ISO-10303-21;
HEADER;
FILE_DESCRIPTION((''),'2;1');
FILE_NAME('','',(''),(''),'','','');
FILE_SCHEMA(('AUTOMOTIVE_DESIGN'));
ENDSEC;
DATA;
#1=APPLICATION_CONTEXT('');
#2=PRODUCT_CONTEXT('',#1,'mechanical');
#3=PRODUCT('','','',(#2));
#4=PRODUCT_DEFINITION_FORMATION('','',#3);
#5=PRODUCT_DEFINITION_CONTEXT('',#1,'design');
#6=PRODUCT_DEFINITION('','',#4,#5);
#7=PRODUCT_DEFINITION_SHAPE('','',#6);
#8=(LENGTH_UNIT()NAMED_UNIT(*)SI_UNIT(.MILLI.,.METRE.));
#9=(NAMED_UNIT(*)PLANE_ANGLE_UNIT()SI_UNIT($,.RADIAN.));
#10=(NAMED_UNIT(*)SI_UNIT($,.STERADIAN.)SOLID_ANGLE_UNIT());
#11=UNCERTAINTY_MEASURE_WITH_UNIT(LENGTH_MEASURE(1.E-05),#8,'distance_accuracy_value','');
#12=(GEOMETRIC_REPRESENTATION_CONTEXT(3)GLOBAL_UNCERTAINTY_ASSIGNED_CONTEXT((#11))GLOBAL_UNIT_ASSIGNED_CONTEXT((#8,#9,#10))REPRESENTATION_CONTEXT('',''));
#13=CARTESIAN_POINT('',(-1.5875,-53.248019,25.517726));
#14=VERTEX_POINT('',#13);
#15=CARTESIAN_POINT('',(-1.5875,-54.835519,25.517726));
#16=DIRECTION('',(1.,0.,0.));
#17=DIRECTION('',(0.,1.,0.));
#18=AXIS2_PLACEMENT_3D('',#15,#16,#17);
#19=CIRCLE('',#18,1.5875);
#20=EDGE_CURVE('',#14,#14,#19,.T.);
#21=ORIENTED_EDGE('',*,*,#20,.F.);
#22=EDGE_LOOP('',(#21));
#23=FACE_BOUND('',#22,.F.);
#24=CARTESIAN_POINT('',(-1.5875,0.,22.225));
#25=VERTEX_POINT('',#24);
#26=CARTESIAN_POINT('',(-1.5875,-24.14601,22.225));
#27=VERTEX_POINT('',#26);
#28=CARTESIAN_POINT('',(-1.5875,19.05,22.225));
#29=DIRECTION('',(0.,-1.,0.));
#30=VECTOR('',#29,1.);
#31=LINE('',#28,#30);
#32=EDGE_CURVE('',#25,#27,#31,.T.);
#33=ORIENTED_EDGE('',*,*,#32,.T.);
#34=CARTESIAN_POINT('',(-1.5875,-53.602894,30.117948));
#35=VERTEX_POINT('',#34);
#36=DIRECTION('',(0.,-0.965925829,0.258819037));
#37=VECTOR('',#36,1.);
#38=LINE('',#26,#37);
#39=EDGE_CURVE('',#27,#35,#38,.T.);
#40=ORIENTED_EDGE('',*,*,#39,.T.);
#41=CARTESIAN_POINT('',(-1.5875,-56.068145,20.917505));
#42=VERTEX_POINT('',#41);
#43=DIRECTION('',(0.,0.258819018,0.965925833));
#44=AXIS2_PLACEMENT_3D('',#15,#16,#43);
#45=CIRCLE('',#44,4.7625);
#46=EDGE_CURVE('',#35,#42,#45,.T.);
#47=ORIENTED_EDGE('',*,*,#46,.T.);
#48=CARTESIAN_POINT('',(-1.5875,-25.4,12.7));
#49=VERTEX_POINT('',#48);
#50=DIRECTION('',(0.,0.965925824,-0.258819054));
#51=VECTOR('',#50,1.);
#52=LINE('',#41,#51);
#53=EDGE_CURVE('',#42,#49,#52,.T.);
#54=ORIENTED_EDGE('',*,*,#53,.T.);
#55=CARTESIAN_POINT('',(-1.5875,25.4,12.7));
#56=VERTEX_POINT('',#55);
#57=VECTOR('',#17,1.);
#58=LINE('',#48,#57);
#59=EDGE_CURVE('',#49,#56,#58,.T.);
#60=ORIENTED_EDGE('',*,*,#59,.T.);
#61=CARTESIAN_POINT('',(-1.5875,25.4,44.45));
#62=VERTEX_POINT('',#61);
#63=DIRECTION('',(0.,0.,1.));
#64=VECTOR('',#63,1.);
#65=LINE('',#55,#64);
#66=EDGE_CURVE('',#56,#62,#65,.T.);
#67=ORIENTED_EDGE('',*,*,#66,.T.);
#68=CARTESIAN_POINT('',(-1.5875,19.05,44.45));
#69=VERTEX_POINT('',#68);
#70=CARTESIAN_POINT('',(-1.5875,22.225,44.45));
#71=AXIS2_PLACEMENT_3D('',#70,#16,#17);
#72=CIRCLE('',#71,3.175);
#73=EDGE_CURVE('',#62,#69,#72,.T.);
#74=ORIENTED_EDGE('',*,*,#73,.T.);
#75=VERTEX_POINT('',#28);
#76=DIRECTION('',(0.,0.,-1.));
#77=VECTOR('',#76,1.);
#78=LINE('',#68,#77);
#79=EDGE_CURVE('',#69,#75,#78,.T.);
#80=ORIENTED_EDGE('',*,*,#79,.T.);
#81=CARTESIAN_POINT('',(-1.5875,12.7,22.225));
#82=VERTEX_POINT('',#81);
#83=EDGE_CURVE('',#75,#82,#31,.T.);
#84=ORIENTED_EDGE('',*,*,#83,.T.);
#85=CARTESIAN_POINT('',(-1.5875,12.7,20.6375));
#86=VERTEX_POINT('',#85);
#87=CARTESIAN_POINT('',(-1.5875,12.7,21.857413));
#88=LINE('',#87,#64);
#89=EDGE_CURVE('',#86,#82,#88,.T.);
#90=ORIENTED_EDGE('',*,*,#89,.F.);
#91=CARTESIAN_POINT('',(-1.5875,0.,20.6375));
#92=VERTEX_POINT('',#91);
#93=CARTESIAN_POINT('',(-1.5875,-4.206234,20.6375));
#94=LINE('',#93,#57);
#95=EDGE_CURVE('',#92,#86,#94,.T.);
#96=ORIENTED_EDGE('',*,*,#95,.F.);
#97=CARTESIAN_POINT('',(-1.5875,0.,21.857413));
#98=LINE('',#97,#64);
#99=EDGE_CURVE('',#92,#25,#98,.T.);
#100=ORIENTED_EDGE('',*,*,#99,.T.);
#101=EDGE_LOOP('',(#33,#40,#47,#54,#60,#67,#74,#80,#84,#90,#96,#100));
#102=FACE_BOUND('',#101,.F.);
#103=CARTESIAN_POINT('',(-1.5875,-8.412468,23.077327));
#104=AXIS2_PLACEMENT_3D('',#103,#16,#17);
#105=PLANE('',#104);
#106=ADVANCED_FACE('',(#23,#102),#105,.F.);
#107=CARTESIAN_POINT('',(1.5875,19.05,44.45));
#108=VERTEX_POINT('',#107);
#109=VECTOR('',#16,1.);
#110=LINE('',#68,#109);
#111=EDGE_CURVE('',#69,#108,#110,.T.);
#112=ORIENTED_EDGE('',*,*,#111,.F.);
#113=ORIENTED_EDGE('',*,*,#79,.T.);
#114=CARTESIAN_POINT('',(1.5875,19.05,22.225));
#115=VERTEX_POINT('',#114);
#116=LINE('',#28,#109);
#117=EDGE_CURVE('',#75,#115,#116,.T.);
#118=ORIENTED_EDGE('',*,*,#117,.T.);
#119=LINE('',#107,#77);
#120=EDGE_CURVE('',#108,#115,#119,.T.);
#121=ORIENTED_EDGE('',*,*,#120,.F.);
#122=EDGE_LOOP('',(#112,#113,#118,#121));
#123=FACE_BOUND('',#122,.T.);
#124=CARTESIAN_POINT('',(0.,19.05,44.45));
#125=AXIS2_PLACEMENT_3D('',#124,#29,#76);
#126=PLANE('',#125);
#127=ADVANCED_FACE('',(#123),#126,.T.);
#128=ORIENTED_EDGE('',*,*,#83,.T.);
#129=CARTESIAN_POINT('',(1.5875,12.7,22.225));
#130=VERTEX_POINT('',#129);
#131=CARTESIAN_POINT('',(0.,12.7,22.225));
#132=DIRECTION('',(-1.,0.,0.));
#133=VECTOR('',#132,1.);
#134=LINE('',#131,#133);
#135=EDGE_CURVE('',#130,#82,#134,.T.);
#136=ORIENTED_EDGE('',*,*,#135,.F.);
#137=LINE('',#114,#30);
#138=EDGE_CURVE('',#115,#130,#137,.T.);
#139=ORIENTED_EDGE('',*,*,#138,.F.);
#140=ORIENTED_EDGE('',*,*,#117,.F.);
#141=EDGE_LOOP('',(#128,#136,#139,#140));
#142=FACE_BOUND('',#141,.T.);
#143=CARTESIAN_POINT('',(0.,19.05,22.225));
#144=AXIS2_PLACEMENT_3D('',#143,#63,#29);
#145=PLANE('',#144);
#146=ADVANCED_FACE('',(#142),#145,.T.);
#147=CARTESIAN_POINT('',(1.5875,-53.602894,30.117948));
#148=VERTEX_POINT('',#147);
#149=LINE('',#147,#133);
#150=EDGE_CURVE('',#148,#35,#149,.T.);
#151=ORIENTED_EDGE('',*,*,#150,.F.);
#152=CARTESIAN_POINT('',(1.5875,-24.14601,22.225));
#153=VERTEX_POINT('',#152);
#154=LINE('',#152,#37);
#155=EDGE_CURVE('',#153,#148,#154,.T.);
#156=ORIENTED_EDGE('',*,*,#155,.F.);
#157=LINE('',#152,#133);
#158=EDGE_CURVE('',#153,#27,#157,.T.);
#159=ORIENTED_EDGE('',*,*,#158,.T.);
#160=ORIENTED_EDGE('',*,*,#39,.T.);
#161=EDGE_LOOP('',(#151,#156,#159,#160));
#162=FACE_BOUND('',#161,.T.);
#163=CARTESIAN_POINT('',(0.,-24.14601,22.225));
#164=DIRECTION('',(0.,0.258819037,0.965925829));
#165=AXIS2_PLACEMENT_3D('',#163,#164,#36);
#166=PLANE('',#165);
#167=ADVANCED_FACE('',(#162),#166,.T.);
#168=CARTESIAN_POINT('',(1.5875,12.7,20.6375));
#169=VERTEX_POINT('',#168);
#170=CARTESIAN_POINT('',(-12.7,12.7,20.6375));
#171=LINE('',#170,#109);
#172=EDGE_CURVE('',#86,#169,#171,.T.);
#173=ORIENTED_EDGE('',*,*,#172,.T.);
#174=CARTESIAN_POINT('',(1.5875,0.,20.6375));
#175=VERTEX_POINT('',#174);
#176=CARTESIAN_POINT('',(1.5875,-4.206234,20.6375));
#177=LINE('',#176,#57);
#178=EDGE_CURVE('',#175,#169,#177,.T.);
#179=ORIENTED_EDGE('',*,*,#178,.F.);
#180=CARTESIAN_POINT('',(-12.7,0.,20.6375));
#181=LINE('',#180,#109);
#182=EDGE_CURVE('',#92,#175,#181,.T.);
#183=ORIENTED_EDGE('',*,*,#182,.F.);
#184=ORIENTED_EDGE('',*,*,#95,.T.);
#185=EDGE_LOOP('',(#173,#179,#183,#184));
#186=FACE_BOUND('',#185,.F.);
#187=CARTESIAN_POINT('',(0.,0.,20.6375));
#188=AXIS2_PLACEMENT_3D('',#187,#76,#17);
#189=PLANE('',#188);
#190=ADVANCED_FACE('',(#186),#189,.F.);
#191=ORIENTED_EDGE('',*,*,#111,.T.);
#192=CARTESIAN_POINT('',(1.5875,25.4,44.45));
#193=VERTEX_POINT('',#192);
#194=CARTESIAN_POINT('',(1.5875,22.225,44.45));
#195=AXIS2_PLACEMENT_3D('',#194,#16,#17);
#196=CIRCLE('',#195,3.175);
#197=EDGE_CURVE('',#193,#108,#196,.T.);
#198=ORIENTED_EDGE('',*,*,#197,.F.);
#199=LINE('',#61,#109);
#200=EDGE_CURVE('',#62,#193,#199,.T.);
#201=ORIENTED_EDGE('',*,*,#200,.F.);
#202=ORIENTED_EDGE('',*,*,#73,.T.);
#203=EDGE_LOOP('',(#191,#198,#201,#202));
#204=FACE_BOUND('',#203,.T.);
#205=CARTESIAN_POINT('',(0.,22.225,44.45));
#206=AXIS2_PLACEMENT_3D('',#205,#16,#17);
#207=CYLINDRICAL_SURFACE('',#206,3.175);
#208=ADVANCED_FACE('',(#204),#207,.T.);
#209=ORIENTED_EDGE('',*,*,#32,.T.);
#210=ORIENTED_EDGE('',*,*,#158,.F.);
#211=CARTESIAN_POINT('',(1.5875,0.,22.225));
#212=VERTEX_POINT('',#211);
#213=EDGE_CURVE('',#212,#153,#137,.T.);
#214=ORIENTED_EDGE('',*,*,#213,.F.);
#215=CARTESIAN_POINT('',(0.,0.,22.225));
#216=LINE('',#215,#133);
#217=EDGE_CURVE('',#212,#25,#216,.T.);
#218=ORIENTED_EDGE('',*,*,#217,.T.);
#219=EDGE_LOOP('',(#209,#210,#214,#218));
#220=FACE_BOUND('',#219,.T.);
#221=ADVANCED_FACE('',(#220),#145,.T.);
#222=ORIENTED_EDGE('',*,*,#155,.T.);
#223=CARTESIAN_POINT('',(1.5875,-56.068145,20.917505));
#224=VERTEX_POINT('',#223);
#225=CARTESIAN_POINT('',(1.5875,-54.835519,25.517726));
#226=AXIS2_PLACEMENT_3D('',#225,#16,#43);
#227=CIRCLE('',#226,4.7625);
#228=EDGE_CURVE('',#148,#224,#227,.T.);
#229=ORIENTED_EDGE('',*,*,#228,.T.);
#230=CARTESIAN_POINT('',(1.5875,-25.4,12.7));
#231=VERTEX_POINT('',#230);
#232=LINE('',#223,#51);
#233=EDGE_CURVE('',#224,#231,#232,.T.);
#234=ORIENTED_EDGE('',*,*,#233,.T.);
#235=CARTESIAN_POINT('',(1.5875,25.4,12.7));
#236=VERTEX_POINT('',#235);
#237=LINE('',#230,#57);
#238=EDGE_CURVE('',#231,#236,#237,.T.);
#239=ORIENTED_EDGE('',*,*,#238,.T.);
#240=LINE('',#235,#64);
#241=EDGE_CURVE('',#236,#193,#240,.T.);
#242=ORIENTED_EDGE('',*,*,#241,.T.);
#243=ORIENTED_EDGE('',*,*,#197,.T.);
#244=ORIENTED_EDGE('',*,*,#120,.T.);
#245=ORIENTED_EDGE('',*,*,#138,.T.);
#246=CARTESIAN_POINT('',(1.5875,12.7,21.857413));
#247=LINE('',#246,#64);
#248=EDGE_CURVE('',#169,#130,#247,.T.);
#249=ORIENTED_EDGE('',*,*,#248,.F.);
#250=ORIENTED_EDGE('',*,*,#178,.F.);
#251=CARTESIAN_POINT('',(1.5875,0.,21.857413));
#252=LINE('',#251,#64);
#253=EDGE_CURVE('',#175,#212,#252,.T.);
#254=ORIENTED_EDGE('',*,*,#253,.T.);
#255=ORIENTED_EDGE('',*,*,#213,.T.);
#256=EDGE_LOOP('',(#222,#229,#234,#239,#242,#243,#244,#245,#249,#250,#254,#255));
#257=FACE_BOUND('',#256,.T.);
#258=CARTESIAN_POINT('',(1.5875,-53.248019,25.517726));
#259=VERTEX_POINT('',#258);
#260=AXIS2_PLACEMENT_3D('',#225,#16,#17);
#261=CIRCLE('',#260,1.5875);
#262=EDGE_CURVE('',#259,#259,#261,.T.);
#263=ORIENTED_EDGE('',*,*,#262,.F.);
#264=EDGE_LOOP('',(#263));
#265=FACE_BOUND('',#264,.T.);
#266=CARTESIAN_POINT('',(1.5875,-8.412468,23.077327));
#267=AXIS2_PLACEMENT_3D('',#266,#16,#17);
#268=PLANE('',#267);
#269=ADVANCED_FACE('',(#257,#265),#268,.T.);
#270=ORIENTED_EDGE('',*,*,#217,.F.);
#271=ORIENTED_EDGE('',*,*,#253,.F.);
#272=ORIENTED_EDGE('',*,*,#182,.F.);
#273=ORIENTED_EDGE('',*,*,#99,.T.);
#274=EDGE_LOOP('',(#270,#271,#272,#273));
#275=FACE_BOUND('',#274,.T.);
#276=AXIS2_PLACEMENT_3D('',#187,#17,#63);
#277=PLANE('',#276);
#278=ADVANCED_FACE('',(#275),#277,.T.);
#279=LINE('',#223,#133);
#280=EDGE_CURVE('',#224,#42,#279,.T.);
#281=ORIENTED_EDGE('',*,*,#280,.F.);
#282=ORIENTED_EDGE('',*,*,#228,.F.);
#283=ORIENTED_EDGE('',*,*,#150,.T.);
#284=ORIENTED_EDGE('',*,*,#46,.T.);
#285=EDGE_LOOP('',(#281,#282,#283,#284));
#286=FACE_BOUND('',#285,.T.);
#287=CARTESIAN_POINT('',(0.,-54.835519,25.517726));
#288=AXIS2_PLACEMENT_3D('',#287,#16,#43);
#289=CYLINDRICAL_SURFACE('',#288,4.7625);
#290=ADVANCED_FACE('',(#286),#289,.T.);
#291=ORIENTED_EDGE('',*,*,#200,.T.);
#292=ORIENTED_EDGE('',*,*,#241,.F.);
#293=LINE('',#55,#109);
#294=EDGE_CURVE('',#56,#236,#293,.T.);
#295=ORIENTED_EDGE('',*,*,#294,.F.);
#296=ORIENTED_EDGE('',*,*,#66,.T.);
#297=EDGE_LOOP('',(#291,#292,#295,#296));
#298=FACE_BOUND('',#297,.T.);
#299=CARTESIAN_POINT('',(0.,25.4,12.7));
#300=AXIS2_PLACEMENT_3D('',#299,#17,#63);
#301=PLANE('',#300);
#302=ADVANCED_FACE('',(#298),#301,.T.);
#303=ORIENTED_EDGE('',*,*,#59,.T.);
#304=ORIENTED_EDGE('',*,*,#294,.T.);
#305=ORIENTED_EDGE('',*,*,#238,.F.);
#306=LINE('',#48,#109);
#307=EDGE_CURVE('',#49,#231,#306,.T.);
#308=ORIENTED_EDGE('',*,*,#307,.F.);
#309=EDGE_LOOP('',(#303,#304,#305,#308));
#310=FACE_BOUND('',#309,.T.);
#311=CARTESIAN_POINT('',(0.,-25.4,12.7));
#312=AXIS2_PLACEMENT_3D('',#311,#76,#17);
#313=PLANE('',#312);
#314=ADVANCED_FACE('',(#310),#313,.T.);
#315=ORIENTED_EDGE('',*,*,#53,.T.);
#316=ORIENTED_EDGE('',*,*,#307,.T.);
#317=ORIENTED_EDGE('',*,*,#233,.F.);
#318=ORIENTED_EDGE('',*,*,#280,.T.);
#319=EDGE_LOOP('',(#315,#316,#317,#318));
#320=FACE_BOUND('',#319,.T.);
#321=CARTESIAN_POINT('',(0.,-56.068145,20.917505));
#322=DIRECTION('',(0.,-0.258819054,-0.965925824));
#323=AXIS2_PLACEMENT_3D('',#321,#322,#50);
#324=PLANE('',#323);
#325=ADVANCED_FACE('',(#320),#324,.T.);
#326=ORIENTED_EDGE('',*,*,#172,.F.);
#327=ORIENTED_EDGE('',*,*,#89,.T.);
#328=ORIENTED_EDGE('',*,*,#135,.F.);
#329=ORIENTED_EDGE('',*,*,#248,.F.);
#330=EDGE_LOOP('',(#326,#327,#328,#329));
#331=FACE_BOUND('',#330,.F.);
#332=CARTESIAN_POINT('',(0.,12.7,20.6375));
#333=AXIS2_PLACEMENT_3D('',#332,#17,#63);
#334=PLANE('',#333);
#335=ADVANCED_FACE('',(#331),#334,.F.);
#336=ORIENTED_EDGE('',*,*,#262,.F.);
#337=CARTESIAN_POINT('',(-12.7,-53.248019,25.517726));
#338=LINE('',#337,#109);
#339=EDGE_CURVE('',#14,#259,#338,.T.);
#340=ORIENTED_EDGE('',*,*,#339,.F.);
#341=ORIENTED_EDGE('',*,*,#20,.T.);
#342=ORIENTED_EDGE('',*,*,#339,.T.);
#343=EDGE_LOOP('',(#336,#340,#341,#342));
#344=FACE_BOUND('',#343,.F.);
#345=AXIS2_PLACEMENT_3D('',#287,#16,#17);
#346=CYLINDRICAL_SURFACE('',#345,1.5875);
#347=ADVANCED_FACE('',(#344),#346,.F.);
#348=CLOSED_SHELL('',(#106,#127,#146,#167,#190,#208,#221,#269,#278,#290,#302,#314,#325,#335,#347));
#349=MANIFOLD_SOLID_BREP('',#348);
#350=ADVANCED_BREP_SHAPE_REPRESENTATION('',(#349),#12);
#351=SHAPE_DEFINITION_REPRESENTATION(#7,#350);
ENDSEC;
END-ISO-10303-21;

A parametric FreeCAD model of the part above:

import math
import FreeCAD as App
import Part
import Sketcher

V = App.Vector
Q = App.Units.Quantity


def add_polygon(sketch, points):
    """Adds a closed chain of lines whose ends are joined by coincident constraints."""
    first, n = sketch.GeometryCount, len(points)
    for a, b in zip(points, points[1:] + points[:1]):
        sketch.addGeometry(Part.LineSegment(App.Vector(*a, 0), App.Vector(*b, 0)), False)
    for i in range(n):
        sketch.addConstraint(Sketcher.Constraint("Coincident", first + i, 2, first + (i + 1) % n, 1))

doc = App.newDocument("Part")
body = doc.addObject("PartDesign::Body", "Body")

# Sketch on YZ plane
sketch1 = body.newObject("Sketcher::SketchObject", "Sketch")
sketch1.AttachmentSupport = (doc.getObject("YZ_Plane"), [""])
sketch1.MapMode = "FlatFace"
sketch1.addGeometry([
    Part.LineSegment(V(-56.1, 20.9, 0), V(-25.4, 12.7, 0)),  # 0
    Part.LineSegment(V(-25.4, 12.7, 0), V(25.4, 12.7, 0)),  # 1
    Part.LineSegment(V(25.4, 12.7, 0), V(25.4, 44.5, 0)),  # 2
    Part.ArcOfCircle(Part.Circle(V(22.2, 44.5, 0), V(0, 0, 1), 3.2), math.radians(0), math.radians(180)),  # 3
    Part.LineSegment(V(19.1, 44.5, 0), V(19.1, 22.2, 0)),  # 4
    Part.LineSegment(V(19.1, 22.2, 0), V(-24.1, 22.2, 0)),  # 5
    Part.LineSegment(V(-24.1, 22.2, 0), V(-53.6, 30.1, 0)),  # 6
    Part.ArcOfCircle(Part.Circle(V(-54.8, 25.5, 0), V(0, 0, 1), 4.8), math.radians(75), math.radians(255)),  # 7
], False)
sketch1.addConstraint([
    Sketcher.Constraint("Coincident", 0, 2, 1, 1),
    Sketcher.Constraint("Coincident", 1, 2, 2, 1),
    Sketcher.Constraint("Tangent", 2, 2, 3, 1),
    Sketcher.Constraint("Tangent", 3, 2, 4, 1),
    Sketcher.Constraint("Coincident", 4, 2, 5, 1),
    Sketcher.Constraint("Coincident", 5, 2, 6, 1),
    Sketcher.Constraint("Tangent", 6, 2, 7, 1),
    Sketcher.Constraint("Tangent", 7, 2, 0, 1),
    Sketcher.Constraint("Horizontal", 1),
    Sketcher.Constraint("Vertical", 2),
    Sketcher.Constraint("Vertical", 4),
    Sketcher.Constraint("Horizontal", 5),
    Sketcher.Constraint("Parallel", 0, 6),
    Sketcher.Constraint("DistanceX", 1, 1, 1, 2, Q("2 in")),
    Sketcher.Constraint("DistanceX", 0, 2, -1, 1, Q("1 in")),
    Sketcher.Constraint("Angle", 0, Q("-15.000001 deg")),
    Sketcher.Constraint("Radius", 3, Q("0.125 in")),
    Sketcher.Constraint("Radius", 7, Q("0.1875 in")),
    Sketcher.Constraint("DistanceY", 2, 1, 2, 2, Q("1.25 in")),
    Sketcher.Constraint("DistanceY", -1, 1, 0, 2, Q("0.5 in")),
    Sketcher.Constraint("Distance", 0, Q("1.25 in")),
    Sketcher.Constraint("DistanceY", 4, 2, 4, 1, Q("0.875 in")),
])
pad1 = body.newObject("PartDesign::Pad", "Pad")
pad1.Profile = sketch1
pad1.Length = Q("0.125 in")
pad1.Midplane = True

# Sketch on YZ plane
sketch2 = body.newObject("Sketcher::SketchObject", "Sketch001")
sketch2.AttachmentSupport = (doc.getObject("YZ_Plane"), [""])
sketch2.MapMode = "FlatFace"
add_polygon(sketch2, [(0, 23.8), (0, 20.6), (12.7, 20.6), (12.7, 23.8)])  # lines 0-3
sketch2.addConstraint([
    Sketcher.Constraint("Vertical", 0),
    Sketcher.Constraint("Horizontal", 1),
    Sketcher.Constraint("Vertical", 2),
    Sketcher.Constraint("Horizontal", 3),
    Sketcher.Constraint("PointOnObject", 0, 2, -2),
    Sketcher.Constraint("DistanceX", 1, 1, 1, 2, Q("0.5 in")),
    Sketcher.Constraint("DistanceY", 0, 2, 0, 1, Q("0.125 in")),
    Sketcher.Constraint("DistanceY", -1, 1, 0, 2, Q("0.8125 in")),
])
pocket1 = body.newObject("PartDesign::Pocket", "Pocket")
pocket1.Profile = sketch2
pocket1.Length = Q("1 in")
pocket1.Midplane = True

# Sketch on YZ plane
sketch3 = body.newObject("Sketcher::SketchObject", "Sketch002")
sketch3.AttachmentSupport = (doc.getObject("YZ_Plane"), [""])
sketch3.MapMode = "FlatFace"
sketch3.addGeometry(Part.Circle(V(-54.8, 25.5, 0), V(0, 0, 1), 1.6), False)
sketch3.addConstraint([
    Sketcher.Constraint("Diameter", 0, Q("0.125 in")),
    Sketcher.Constraint("DistanceX", 0, 3, -1, 1, Q("54.835519 mm")),
    Sketcher.Constraint("DistanceY", -1, 1, 0, 3, Q("25.517726 mm")),
])
pocket2 = body.newObject("PartDesign::Pocket", "Pocket001")
pocket2.Profile = sketch3
pocket2.Length = Q("1 in")
pocket2.Midplane = True

doc.recompute()
